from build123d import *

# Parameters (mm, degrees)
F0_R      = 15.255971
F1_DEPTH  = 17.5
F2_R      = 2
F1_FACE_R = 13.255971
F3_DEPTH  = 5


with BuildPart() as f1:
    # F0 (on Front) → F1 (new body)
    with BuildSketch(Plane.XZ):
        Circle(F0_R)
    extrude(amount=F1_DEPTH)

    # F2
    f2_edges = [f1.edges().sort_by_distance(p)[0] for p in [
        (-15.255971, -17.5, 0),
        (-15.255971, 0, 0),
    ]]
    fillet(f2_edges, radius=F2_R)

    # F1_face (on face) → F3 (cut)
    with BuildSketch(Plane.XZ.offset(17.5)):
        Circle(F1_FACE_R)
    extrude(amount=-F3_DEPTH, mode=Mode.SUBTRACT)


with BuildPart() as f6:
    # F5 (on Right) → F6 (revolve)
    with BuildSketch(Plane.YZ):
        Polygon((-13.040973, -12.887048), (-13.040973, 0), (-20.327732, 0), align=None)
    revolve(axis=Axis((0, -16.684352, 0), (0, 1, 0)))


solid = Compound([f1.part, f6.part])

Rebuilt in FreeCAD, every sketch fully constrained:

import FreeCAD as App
import Part
import Sketcher

V = App.Vector
Q = App.Units.Quantity


def edges_at(feature, points):
    """Names of the edges that pass closest to the given points."""
    edges = feature.Shape.Edges
    near = lambda p: min(range(len(edges)), key=lambda i: edges[i].distToShape(Part.Vertex(*p))[0])
    return sorted({f"Edge{near(p) + 1}" for p in points})


def add_polygon(sketch, points):
    """Adds a closed chain of lines whose ends are joined by coincident constraints."""
    first, n = sketch.GeometryCount, len(points)
    for a, b in zip(points, points[1:] + points[:1]):
        sketch.addGeometry(Part.LineSegment(App.Vector(*a, 0), App.Vector(*b, 0)), False)
    for i in range(n):
        sketch.addConstraint(Sketcher.Constraint("Coincident", first + i, 2, first + (i + 1) % n, 1))

doc = App.newDocument("Part")
params = doc.addObject("Spreadsheet::Sheet", "Params")
for row, (alias, value) in enumerate([
    ("pad1_length", "17.5 mm"),
    ("fillet_radius", "2 mm"),
    ("pocket1_length", "5 mm"),
    ("revolution_angle", "360 deg"),
], start=1):
    params.set(f"A{row}", alias)
    params.set(f"B{row}", "=" + value)
    params.setAlias(f"B{row}", alias)

body = doc.addObject("PartDesign::Body", "Body")

# Sketch on XZ plane
sketch1 = body.newObject("Sketcher::SketchObject", "Sketch")
sketch1.AttachmentSupport = (doc.getObject("XZ_Plane"), [""])
sketch1.MapMode = "FlatFace"
sketch1.addGeometry(Part.Circle(V(0, 0, 0), V(0, 0, 1), 15), False)
sketch1.addConstraint([
    Sketcher.Constraint("Coincident", 0, 3, -1, 1),
    Sketcher.Constraint("Diameter", 0, Q("30.511942 mm")),
])
pad1 = body.newObject("PartDesign::Pad", "Pad")
pad1.Profile = sketch1
pad1.setExpression("Length", "Params.pad1_length")
doc.recompute()

fillet = body.newObject("PartDesign::Fillet", "Fillet")
fillet.Base = (pad1, edges_at(pad1, [(-15.256, -17.5, 0), (-15.256, 0, 0)]))
fillet.setExpression("Radius", "Params.fillet_radius")

# Sketch on XZ plane
sketch2 = body.newObject("Sketcher::SketchObject", "Sketch001")
sketch2.AttachmentSupport = (doc.getObject("XZ_Plane"), [""])
sketch2.MapMode = "FlatFace"
sketch2.AttachmentOffset = App.Placement(V(0, 0, 17.5), App.Rotation())
sketch2.addGeometry(Part.Circle(V(0, 0, 0), V(0, 0, 1), 13), False)
sketch2.addConstraint([
    Sketcher.Constraint("Coincident", 0, 3, -1, 1),
    Sketcher.Constraint("Diameter", 0, Q("26.511942 mm")),
])
pocket1 = body.newObject("PartDesign::Pocket", "Pocket")
pocket1.Profile = sketch2
pocket1.setExpression("Length", "Params.pocket1_length")
body2 = doc.addObject("PartDesign::Body", "Body001")

# Sketch on YZ plane
sketch3 = body2.newObject("Sketcher::SketchObject", "Sketch002")
sketch3.AttachmentSupport = (doc.getObject("YZ_Plane001"), [""])
sketch3.MapMode = "FlatFace"
add_polygon(sketch3, [(-13, -13), (-13, 0), (-20, 0)])  # lines 0-2
sketch3.addConstraint([
    Sketcher.Constraint("Vertical", 0),
    Sketcher.Constraint("Horizontal", 1),
    Sketcher.Constraint("PointOnObject", 0, 2, -1),
    Sketcher.Constraint("DistanceX", 1, 2, 1, 1, Q("7.286759 mm")),
    Sketcher.Constraint("DistanceY", 0, 1, 0, 2, Q("12.887048 mm")),
    Sketcher.Constraint("DistanceX", 0, 2, -1, 1, Q("13.040973 mm")),
])
revolution = body2.newObject("PartDesign::Revolution", "Revolution")
revolution.Profile = sketch3
revolution.ReferenceAxis = (sketch3, ["H_Axis"])
revolution.setExpression("Angle", "Params.revolution_angle")

doc.recompute()
